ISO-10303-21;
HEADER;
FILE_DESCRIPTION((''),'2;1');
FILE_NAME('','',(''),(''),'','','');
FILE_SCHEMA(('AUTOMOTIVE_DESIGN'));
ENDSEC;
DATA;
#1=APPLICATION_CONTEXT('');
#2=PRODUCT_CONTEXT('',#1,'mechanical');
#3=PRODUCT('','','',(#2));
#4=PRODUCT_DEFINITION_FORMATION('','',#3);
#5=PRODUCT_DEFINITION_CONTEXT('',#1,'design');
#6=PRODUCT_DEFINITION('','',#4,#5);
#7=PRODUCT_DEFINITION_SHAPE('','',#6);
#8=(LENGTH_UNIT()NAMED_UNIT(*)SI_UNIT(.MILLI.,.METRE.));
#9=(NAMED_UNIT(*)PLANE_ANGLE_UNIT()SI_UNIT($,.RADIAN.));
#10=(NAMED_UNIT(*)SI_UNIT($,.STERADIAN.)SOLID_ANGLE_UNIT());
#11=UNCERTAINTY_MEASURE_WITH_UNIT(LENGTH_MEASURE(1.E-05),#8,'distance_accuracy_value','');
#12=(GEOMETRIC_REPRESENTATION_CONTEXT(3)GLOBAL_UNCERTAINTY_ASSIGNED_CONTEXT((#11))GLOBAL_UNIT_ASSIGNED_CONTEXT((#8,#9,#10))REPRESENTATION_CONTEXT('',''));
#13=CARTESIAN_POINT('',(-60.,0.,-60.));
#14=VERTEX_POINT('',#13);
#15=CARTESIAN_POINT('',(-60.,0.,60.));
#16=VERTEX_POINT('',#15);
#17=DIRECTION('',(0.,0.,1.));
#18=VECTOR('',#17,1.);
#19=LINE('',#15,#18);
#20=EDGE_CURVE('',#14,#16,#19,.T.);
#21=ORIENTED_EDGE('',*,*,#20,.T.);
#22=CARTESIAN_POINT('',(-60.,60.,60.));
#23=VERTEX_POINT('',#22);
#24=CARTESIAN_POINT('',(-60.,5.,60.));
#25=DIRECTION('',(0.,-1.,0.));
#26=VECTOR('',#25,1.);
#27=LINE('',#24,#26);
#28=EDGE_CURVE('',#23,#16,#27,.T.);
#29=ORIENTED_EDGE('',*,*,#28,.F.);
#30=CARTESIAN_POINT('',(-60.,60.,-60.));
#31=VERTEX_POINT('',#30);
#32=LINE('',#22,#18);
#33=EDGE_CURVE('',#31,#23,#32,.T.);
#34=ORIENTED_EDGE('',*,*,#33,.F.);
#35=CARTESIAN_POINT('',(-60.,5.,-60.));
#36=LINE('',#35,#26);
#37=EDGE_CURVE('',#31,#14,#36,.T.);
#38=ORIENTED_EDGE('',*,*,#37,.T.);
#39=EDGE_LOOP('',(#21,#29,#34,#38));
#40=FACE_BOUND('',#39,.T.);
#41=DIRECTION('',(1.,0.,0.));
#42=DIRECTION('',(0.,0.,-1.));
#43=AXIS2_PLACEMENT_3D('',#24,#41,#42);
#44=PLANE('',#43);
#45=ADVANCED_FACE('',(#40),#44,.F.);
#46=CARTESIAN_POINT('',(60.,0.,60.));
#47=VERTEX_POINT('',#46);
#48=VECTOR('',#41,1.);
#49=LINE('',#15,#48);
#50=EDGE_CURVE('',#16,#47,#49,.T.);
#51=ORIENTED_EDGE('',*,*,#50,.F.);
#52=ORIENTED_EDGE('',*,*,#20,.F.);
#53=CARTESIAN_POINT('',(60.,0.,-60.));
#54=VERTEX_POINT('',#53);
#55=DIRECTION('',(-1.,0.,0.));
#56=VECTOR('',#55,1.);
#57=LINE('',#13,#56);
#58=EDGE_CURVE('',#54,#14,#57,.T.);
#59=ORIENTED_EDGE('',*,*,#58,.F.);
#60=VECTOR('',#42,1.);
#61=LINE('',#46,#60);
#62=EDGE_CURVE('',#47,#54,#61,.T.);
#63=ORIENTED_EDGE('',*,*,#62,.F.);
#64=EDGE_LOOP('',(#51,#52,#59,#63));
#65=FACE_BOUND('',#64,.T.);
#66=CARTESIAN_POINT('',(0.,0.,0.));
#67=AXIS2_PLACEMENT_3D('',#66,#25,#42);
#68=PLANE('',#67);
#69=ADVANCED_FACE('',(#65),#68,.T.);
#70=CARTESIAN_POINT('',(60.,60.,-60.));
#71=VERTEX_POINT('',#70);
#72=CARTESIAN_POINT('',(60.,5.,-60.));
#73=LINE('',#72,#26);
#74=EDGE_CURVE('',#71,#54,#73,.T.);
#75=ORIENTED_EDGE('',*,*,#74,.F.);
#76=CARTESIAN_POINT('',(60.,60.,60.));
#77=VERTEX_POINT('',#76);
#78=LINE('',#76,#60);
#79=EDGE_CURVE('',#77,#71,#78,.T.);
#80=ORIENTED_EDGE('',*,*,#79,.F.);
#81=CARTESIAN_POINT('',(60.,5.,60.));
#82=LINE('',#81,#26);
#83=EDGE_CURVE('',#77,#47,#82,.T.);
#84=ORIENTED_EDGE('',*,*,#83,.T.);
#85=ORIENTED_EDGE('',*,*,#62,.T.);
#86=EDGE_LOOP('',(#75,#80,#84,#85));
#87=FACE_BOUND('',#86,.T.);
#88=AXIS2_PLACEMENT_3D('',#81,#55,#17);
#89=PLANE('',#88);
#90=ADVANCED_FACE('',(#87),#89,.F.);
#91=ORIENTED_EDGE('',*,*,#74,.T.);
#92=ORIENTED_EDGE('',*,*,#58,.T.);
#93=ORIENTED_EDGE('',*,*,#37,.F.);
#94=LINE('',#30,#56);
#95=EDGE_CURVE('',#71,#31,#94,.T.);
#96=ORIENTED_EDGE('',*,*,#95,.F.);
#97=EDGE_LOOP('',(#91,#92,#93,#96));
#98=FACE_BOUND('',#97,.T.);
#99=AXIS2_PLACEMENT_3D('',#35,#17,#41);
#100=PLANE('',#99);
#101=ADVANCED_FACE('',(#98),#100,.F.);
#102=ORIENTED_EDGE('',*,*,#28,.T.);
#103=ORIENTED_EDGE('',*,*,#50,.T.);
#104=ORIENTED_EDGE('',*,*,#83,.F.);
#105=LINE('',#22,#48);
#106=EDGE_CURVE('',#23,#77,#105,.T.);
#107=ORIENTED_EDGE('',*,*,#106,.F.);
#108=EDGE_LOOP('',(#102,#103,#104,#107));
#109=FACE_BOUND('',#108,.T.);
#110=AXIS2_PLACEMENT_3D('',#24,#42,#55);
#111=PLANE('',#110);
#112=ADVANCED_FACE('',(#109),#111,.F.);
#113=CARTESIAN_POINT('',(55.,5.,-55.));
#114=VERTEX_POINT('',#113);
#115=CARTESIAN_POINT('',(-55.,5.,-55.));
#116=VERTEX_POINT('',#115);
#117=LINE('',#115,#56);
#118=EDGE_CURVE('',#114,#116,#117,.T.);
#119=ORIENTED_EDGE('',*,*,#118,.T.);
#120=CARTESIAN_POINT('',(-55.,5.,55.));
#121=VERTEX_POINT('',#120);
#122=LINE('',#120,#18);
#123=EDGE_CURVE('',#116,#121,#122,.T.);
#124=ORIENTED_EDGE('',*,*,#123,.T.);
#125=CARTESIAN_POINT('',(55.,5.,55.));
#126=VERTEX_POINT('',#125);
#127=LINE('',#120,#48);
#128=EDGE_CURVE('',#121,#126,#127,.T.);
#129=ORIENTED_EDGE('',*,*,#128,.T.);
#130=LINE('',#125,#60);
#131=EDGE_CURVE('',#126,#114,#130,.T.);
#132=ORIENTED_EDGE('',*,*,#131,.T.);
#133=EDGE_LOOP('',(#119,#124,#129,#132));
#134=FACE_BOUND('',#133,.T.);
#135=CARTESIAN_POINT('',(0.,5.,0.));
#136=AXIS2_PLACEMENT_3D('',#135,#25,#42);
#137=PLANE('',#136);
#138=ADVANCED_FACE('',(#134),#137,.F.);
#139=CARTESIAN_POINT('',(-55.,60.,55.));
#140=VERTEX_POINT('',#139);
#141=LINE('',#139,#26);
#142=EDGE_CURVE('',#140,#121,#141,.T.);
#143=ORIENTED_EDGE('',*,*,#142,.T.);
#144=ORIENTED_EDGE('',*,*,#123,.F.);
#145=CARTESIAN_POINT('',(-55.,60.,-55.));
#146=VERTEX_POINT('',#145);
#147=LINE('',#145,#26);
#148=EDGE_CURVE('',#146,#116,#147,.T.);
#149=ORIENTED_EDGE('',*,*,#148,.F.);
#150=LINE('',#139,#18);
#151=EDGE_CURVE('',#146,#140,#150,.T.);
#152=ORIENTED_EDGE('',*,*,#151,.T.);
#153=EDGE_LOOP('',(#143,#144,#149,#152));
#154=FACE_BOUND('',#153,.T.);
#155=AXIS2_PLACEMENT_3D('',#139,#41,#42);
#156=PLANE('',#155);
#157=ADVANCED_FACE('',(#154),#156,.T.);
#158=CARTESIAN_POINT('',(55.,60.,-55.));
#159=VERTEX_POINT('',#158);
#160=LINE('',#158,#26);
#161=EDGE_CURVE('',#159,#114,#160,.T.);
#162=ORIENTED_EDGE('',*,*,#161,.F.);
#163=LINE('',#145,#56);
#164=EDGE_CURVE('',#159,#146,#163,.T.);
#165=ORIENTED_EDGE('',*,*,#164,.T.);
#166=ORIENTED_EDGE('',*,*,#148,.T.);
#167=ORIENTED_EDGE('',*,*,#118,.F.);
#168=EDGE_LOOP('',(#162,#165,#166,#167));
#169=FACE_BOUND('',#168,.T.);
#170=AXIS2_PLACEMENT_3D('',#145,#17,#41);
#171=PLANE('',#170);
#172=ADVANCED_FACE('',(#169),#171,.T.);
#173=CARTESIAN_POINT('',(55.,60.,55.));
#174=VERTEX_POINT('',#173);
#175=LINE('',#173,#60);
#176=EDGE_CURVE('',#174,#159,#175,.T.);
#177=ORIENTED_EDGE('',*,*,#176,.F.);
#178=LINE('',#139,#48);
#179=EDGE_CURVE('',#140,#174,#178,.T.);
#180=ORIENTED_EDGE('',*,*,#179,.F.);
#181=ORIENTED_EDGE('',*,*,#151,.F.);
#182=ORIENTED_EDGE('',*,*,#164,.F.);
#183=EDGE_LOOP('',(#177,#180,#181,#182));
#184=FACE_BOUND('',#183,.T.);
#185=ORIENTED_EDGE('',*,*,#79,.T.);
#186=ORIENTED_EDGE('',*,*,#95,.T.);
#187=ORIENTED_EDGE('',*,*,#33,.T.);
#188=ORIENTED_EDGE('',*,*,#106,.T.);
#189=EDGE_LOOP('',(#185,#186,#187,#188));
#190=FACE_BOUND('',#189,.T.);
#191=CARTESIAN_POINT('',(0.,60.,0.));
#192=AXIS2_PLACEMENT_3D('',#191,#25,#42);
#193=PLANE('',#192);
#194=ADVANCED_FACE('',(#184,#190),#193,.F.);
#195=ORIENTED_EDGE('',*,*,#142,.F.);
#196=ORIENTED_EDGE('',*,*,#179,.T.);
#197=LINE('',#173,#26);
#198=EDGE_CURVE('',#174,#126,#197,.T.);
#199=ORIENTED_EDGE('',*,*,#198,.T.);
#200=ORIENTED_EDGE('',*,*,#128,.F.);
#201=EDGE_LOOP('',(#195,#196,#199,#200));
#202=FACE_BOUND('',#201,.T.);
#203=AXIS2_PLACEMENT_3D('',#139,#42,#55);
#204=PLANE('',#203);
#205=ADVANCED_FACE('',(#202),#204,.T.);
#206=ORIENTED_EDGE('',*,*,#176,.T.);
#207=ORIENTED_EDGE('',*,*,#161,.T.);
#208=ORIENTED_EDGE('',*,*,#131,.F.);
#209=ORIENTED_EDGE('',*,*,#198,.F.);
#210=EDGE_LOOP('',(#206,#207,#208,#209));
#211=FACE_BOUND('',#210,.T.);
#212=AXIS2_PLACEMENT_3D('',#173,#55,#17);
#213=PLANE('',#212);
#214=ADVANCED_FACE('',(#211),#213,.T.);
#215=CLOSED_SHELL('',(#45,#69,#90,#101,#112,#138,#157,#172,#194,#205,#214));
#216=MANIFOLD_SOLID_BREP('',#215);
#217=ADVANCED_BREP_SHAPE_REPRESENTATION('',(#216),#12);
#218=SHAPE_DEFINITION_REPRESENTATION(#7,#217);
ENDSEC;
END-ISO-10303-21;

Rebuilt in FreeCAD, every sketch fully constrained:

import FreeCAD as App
import Part
import Sketcher
Q = App.Units.Quantity


def add_polygon(sketch, points):
    """Adds a closed chain of lines whose ends are joined by coincident constraints."""
    first, n = sketch.GeometryCount, len(points)
    for a, b in zip(points, points[1:] + points[:1]):
        sketch.addGeometry(Part.LineSegment(App.Vector(*a, 0), App.Vector(*b, 0)), False)
    for i in range(n):
        sketch.addConstraint(Sketcher.Constraint("Coincident", first + i, 2, first + (i + 1) % n, 1))

doc = App.newDocument("Part")
params = doc.addObject("Spreadsheet::Sheet", "Params")
for row, (alias, value) in enumerate([
    ("sketch1_width", "120 mm"),
    ("pad1_length", "5 mm"),
    ("sketch2_width", "120 mm"),
    ("sketch2_width2", "110 mm"),
    ("pad2_length", "55 mm"),
], start=1):
    params.set(f"A{row}", alias)
    params.set(f"B{row}", "=" + value)
    params.setAlias(f"B{row}", alias)

body = doc.addObject("PartDesign::Body", "Body")

# Sketch on XZ plane
sketch1 = doc.addObject("Sketcher::SketchObject", "Sketch")
body.addObject(sketch1)
sketch1.AttachmentSupport = (doc.XZ_Plane, [""])
sketch1.MapMode = "FlatFace"
add_polygon(sketch1, [(-60, -60), (-60, 60), (60, 60), (60, -60)])  # lines 0-3
sketch1.addConstraint([
    Sketcher.Constraint("Vertical", 0),
    Sketcher.Constraint("Horizontal", 1),
    Sketcher.Constraint("Vertical", 2),
    Sketcher.Constraint("Horizontal", 3),
    Sketcher.Constraint("Symmetric", 0, 2, 2, 2, -1, 1),
    Sketcher.Constraint("Equal", 3, 0),
    Sketcher.Constraint("DistanceX", 1, 1, 1, 2, Q("120 mm")),
])
sketch1.setExpression("Constraints[10]", "Params.sketch1_width")
pad1 = doc.addObject("PartDesign::Pad", "Pad")
body.addObject(pad1)
pad1.Profile = sketch1
pad1.setExpression("Length", "Params.pad1_length")
pad1.Reversed = True

# Sketch on XZ plane
sketch2 = doc.addObject("Sketcher::SketchObject", "Sketch001")
body.addObject(sketch2)
sketch2.AttachmentSupport = (doc.XZ_Plane, [""])
sketch2.MapMode = "FlatFace"
sketch2.AttachmentOffset = App.Placement(App.Vector(0, 0, -5), App.Rotation())
add_polygon(sketch2, [(-60, -60), (-60, 60), (60, 60), (60, -60)])  # lines 0-3
add_polygon(sketch2, [(55, 55), (-55, 55), (-55, -55), (55, -55)])  # lines 4-7
sketch2.addConstraint([
    Sketcher.Constraint("Vertical", 0),
    Sketcher.Constraint("Horizontal", 1),
    Sketcher.Constraint("Vertical", 2),
    Sketcher.Constraint("Horizontal", 3),
    Sketcher.Constraint("Horizontal", 4),
    Sketcher.Constraint("Vertical", 5),
    Sketcher.Constraint("Horizontal", 6),
    Sketcher.Constraint("Vertical", 7),
    Sketcher.Constraint("Symmetric", 0, 2, 2, 2, -1, 1),
    Sketcher.Constraint("Symmetric", 4, 2, 6, 2, -1, 1),
    Sketcher.Constraint("Equal", 3, 0),
    Sketcher.Constraint("Equal", 6, 5),
    Sketcher.Constraint("DistanceX", 1, 1, 1, 2, Q("120 mm")),
    Sketcher.Constraint("DistanceX", 4, 2, 4, 1, Q("110 mm")),
])
sketch2.setExpression("Constraints[20]", "Params.sketch2_width")
sketch2.setExpression("Constraints[21]", "Params.sketch2_width2")
pad2 = doc.addObject("PartDesign::Pad", "Pad001")
body.addObject(pad2)
pad2.Profile = sketch2
pad2.setExpression("Length", "Params.pad2_length")
pad2.Reversed = True

doc.recompute()
